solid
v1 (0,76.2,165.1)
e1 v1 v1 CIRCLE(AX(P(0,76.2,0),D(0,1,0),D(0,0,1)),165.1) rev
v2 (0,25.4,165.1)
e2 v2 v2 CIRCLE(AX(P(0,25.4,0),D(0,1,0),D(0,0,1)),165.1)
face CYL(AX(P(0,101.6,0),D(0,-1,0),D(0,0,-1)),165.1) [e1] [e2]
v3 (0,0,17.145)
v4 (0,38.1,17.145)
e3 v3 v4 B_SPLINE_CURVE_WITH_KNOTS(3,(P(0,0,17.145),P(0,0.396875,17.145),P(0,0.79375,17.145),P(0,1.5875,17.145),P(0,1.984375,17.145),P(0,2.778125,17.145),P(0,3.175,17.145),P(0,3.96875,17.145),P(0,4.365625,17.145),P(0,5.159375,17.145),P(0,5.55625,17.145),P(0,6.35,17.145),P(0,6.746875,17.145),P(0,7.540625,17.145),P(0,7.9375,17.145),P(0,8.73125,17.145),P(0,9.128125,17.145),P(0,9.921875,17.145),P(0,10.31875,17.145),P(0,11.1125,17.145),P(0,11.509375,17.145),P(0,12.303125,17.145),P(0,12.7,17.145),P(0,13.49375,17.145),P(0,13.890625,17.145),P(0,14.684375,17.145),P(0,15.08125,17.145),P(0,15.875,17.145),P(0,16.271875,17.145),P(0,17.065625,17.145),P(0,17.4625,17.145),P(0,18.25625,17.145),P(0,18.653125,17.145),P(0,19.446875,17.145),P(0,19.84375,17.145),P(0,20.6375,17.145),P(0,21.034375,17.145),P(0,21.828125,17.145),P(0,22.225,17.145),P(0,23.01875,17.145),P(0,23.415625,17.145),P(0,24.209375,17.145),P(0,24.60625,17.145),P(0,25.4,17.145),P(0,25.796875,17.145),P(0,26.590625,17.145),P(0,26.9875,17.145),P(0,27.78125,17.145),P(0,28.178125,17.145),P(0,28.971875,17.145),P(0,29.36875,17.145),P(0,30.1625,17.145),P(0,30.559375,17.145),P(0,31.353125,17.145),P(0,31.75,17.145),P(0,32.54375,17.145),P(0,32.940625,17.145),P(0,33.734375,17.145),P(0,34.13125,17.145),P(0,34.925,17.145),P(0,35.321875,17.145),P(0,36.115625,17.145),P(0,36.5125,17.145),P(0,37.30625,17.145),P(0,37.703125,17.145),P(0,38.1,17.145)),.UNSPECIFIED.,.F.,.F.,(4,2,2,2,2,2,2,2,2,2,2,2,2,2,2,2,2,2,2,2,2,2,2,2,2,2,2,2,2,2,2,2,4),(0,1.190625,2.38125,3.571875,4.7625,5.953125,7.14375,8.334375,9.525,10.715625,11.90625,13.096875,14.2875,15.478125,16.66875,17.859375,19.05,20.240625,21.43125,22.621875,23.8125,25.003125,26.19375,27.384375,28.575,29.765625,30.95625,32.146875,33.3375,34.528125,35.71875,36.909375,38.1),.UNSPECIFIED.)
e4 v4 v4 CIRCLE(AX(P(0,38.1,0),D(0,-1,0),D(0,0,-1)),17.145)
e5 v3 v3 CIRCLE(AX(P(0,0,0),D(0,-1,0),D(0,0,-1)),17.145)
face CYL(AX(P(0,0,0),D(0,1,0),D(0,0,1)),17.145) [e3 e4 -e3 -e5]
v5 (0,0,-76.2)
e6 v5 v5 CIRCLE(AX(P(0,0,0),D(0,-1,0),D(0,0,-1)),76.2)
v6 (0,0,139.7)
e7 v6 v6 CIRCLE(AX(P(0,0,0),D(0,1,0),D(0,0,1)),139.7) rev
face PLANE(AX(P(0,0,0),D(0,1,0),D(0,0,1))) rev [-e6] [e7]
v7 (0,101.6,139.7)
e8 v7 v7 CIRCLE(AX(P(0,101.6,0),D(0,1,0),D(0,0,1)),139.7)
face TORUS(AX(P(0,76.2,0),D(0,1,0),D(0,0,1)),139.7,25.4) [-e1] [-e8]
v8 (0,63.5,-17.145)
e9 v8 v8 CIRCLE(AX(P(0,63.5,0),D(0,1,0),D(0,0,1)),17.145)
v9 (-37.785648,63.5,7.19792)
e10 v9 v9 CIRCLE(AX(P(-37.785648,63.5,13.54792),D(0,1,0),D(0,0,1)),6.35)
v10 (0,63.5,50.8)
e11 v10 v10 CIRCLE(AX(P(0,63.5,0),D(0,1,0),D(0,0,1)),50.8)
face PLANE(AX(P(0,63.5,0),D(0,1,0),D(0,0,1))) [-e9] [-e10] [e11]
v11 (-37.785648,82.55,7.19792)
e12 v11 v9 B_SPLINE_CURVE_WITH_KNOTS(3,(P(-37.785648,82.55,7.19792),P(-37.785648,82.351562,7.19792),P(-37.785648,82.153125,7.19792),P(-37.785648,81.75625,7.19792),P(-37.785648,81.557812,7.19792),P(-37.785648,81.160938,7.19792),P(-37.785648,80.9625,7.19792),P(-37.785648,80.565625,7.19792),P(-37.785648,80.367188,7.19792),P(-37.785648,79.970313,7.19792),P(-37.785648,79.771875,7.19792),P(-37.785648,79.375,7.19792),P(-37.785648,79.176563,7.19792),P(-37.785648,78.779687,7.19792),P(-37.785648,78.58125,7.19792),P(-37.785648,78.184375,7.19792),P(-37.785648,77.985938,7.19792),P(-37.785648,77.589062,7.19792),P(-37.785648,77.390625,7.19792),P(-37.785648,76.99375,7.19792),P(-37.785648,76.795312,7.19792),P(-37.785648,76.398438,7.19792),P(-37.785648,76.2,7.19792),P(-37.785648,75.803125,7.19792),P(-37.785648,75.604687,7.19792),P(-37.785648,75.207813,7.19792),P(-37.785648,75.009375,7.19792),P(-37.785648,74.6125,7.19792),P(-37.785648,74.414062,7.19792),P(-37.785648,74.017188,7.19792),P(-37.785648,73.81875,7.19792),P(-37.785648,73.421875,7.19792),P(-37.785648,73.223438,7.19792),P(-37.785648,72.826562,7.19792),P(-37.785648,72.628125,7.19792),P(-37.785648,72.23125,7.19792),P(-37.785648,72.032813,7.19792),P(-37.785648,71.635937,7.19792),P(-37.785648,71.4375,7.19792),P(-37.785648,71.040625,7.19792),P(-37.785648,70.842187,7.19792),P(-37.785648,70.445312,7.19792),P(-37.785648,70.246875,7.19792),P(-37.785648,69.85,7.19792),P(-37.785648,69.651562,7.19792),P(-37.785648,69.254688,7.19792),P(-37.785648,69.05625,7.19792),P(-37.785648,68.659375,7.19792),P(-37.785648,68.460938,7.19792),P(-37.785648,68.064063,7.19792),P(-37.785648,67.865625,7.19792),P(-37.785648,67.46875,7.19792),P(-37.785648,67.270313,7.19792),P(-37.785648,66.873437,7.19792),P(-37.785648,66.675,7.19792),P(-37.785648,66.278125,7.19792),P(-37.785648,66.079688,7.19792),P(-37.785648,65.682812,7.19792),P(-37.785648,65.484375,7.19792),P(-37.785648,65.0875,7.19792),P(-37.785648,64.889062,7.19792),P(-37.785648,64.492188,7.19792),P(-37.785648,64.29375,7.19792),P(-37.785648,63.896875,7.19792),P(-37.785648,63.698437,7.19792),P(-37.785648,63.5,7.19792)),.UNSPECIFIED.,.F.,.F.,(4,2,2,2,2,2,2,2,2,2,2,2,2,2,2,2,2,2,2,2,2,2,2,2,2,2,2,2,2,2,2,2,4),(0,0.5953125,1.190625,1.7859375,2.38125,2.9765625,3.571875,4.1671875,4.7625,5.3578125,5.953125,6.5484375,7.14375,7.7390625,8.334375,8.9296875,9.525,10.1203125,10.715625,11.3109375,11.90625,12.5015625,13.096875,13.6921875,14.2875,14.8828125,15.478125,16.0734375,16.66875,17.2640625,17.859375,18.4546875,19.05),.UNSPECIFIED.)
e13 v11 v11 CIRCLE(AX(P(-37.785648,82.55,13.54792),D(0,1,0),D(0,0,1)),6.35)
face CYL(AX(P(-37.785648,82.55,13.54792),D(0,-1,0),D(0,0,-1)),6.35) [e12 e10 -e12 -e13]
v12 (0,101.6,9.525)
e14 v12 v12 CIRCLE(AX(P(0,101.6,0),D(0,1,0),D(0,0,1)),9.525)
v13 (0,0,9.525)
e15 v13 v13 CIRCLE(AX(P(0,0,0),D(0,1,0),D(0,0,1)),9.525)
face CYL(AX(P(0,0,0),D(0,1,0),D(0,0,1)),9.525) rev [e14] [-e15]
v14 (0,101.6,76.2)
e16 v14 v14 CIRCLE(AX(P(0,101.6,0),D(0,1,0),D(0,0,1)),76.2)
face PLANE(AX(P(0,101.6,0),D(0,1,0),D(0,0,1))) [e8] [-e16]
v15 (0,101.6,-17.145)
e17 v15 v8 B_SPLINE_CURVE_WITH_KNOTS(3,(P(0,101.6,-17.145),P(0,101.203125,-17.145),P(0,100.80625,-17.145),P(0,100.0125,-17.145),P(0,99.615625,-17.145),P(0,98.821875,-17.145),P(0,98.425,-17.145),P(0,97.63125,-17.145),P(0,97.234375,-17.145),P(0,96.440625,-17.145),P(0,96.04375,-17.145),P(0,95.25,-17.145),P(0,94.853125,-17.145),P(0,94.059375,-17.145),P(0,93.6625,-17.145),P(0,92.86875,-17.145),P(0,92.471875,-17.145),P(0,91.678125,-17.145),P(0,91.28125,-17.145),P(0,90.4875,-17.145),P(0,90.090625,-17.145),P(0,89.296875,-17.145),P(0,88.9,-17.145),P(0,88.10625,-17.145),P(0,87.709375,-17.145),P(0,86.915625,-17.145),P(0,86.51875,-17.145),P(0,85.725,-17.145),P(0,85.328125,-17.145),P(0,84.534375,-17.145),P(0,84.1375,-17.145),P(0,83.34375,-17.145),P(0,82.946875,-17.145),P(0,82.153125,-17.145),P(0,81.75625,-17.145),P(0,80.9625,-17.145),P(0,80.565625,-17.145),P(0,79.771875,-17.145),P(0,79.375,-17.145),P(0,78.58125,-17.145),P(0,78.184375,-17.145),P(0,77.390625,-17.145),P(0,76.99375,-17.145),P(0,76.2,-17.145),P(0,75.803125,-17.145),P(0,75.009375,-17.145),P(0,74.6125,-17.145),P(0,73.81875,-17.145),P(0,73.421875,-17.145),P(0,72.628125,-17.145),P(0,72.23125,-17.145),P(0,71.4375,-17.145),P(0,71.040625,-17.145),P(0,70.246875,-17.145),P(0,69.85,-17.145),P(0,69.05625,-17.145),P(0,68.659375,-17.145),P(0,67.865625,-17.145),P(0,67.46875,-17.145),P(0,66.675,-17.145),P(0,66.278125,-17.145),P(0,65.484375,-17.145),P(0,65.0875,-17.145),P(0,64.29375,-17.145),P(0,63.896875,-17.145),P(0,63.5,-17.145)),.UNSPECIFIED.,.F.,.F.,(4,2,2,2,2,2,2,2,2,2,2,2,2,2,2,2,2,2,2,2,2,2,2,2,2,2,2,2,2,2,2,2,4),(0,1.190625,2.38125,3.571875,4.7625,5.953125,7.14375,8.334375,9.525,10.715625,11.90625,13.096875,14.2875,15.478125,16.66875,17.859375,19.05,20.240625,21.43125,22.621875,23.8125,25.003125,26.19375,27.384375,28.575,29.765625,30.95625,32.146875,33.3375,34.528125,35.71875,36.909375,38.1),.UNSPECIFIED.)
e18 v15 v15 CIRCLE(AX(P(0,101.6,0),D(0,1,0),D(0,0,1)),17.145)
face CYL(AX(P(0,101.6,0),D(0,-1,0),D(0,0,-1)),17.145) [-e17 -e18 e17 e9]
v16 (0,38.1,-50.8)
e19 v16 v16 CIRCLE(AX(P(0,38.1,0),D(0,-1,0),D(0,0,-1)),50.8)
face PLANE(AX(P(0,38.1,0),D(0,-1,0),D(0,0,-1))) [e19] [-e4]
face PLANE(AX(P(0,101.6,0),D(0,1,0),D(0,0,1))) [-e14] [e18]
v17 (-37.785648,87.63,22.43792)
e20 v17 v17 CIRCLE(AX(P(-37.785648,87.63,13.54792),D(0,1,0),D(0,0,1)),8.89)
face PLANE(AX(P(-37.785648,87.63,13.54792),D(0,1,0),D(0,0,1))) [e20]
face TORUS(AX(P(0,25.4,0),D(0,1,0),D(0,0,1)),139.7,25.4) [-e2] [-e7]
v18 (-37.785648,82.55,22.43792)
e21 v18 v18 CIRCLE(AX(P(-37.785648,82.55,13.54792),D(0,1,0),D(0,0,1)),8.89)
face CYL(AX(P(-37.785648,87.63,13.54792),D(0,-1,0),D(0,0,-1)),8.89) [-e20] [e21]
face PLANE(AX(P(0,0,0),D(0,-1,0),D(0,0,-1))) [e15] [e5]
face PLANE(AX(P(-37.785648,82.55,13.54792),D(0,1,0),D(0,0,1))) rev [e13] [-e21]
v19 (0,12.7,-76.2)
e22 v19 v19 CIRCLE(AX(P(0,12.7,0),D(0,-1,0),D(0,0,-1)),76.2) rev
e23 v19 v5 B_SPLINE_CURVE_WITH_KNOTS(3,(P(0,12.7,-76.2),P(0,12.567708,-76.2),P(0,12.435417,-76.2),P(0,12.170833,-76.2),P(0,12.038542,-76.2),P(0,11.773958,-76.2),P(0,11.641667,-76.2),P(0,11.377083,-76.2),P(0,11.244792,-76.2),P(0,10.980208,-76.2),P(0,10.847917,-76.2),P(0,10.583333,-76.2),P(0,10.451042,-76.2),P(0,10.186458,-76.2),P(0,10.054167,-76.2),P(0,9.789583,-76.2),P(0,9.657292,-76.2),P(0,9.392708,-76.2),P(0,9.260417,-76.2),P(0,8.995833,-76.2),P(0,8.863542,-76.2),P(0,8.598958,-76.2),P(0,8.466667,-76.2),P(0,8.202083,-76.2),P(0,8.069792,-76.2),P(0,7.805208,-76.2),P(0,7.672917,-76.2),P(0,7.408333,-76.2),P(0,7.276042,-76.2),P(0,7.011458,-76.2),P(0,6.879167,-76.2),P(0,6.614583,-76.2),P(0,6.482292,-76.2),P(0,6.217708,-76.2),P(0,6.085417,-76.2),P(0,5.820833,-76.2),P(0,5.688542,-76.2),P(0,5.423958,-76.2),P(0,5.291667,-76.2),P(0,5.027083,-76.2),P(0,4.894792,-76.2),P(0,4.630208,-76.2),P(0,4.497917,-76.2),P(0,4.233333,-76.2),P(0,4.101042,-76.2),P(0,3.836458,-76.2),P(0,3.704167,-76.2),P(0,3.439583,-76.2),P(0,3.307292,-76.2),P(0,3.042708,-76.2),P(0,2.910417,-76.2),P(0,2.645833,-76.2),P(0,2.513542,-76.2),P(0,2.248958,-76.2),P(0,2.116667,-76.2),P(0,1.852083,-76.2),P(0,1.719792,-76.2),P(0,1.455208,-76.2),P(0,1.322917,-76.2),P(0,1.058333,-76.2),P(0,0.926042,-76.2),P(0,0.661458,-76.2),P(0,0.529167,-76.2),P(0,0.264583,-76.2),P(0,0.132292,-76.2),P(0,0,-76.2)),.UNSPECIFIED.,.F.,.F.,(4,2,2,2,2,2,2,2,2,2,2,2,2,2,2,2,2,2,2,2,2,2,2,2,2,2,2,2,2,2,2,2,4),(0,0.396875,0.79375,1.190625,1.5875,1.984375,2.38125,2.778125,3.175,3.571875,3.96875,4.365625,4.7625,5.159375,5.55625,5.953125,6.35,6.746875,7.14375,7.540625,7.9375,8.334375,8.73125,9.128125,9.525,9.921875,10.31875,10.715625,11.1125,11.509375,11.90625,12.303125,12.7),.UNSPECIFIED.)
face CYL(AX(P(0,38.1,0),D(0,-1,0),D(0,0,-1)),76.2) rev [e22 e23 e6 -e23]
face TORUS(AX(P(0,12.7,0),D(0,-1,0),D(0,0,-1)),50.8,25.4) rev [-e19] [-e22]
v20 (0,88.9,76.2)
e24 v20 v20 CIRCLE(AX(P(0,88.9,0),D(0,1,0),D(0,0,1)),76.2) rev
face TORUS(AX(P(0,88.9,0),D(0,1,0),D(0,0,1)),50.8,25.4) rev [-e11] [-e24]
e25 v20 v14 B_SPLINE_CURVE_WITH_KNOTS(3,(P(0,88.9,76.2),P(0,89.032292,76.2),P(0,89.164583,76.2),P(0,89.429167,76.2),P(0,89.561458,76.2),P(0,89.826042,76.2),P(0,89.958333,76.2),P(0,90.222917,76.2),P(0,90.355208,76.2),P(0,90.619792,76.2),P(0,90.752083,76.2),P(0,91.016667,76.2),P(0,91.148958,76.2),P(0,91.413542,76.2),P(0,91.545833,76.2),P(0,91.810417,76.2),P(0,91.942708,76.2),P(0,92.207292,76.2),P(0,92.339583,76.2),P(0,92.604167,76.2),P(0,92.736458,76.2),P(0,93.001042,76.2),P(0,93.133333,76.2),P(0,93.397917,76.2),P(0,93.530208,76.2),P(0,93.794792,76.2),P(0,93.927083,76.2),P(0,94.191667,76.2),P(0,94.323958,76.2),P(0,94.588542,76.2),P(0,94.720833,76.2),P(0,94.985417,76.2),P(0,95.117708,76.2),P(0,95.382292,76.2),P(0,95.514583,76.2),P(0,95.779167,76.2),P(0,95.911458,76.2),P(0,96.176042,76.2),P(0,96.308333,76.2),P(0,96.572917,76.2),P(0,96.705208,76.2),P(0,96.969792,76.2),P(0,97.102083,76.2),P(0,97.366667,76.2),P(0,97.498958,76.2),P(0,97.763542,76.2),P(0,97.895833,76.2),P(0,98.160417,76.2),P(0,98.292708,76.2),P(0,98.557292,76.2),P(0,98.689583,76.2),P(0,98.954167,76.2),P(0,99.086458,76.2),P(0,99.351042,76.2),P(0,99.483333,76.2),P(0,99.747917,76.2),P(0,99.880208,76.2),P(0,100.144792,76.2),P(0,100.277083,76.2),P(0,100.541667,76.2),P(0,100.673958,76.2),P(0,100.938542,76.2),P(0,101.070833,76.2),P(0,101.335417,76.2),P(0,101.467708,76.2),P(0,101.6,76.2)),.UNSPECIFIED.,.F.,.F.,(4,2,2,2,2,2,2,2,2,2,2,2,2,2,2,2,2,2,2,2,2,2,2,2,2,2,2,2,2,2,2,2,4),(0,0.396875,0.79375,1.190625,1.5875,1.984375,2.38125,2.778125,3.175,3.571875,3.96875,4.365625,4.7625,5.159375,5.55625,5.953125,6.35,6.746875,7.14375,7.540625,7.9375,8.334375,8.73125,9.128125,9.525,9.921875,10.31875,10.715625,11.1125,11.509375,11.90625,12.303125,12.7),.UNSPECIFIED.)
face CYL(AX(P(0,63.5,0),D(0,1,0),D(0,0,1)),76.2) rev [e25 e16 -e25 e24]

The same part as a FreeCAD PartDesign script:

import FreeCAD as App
import Part
import Sketcher

V = App.Vector
Q = App.Units.Quantity


def edges_at(feature, points):
    """Names of the edges that pass closest to the given points."""
    edges = feature.Shape.Edges
    near = lambda p: min(range(len(edges)), key=lambda i: edges[i].distToShape(Part.Vertex(*p))[0])
    return sorted({f"Edge{near(p) + 1}" for p in points})

doc = App.newDocument("Part")
body = doc.addObject("PartDesign::Body", "Body")

sketch1 = doc.addObject("Sketcher::SketchObject", "Sketch")
body.addObject(sketch1)
sketch1.AttachmentSupport = (doc.XZ_Plane, [""])
sketch1.MapMode = "FlatFace"
sketch1.addGeometry(Part.Circle(V(0, 0, 0), V(0, 0, 1), 165), False)
sketch1.addConstraint(Sketcher.Constraint("Coincident", 0, 3, -1, 1))
sketch1.addConstraint(Sketcher.Constraint("Diameter", 0, Q("13 in")))
pad1 = doc.addObject("PartDesign::Pad", "Pad")
body.addObject(pad1)
pad1.Profile = sketch1
pad1.Length = Q("4 in")
pad1.Reversed = True

sketch2 = doc.addObject("Sketcher::SketchObject", "Sketch001")
body.addObject(sketch2)
sketch2.AttachmentSupport = (doc.XZ_Plane, [""])
sketch2.MapMode = "FlatFace"
sketch2.AttachmentOffset = App.Placement(V(0, 0, -4 * 25.4), App.Rotation())
sketch2.addGeometry(Part.Circle(V(0, 0, 0), V(0, 0, 1), 76), False)
sketch2.addConstraint(Sketcher.Constraint("Coincident", 0, 3, -1, 1))
sketch2.addConstraint(Sketcher.Constraint("Diameter", 0, Q("6 in")))
pocket1 = doc.addObject("PartDesign::Pocket", "Pocket")
body.addObject(pocket1)
pocket1.Profile = sketch2
pocket1.Length = Q("1.5 in")
pocket1.Reversed = True
doc.recompute()

fillet = doc.addObject("PartDesign::Fillet", "Fillet")
body.addObject(fillet)
fillet.Base = (pocket1, edges_at(pocket1, [(0, 63.5, -76.2)]))
fillet.Radius = Q("1 in")
doc.recompute()

fillet2 = doc.addObject("PartDesign::Fillet", "Fillet001")
body.addObject(fillet2)
fillet2.Base = (fillet, edges_at(fillet, [(0, 101.6, -165.1)]))
fillet2.Radius = Q("1 in")

sketch3 = doc.addObject("Sketcher::SketchObject", "Sketch002")
body.addObject(sketch3)
sketch3.AttachmentSupport = (doc.XZ_Plane, [""])
sketch3.MapMode = "FlatFace"
sketch3.AttachmentOffset = App.Placement(V(0, 0, -1.5 * 25.4), App.Rotation())
sketch3.addGeometry(Part.Circle(V(0, 0, 0), V(0, 0, 1), 76), False)
sketch3.addConstraint(Sketcher.Constraint("Coincident", 0, 3, -1, 1))
sketch3.addConstraint(Sketcher.Constraint("Diameter", 0, Q("6 in")))
pocket2 = doc.addObject("PartDesign::Pocket", "Pocket001")
body.addObject(pocket2)
pocket2.Profile = sketch3
pocket2.Length = Q("1.5 in")
pocket2.Reversed = True
doc.recompute()

fillet3 = doc.addObject("PartDesign::Fillet", "Fillet002")
body.addObject(fillet3)
fillet3.Base = (pocket2, edges_at(pocket2, [(0, 38.1, -76.2)]))
fillet3.Radius = Q("1 in")
doc.recompute()

fillet4 = doc.addObject("PartDesign::Fillet", "Fillet003")
body.addObject(fillet4)
fillet4.Base = (fillet3, edges_at(fillet3, [(0, 0, -165.1)]))
fillet4.Radius = Q("1 in")

sketch4 = doc.addObject("Sketcher::SketchObject", "Sketch003")
body.addObject(sketch4)
sketch4.AttachmentSupport = (doc.XZ_Plane, [""])
sketch4.MapMode = "FlatFace"
sketch4.AttachmentOffset = App.Placement(V(0, 0, -1.5 * 25.4), App.Rotation())
sketch4.addGeometry(Part.Circle(V(0, 0, 0), V(0, 0, 1), 17), False)
sketch4.addConstraint(Sketcher.Constraint("Coincident", 0, 3, -1, 1))
sketch4.addConstraint(Sketcher.Constraint("Diameter", 0, Q("1.35 in")))
pad2 = doc.addObject("PartDesign::Pad", "Pad001")
body.addObject(pad2)
pad2.Profile = sketch4
pad2.Length = Q("1.5 in")

sketch5 = doc.addObject("Sketcher::SketchObject", "Sketch004")
body.addObject(sketch5)
sketch5.AttachmentSupport = (doc.XZ_Plane, [""])
sketch5.MapMode = "FlatFace"
sketch5.AttachmentOffset = App.Placement(V(0, 0, -4 * 25.4), App.Rotation())
sketch5.addGeometry(Part.Circle(V(0, 0, 0), V(0, 0, 1), 17), False)
sketch5.addConstraint(Sketcher.Constraint("Coincident", 0, 3, -1, 1))
sketch5.addConstraint(Sketcher.Constraint("Diameter", 0, Q("1.35 in")))
pad3 = doc.addObject("PartDesign::Pad", "Pad002")
body.addObject(pad3)
pad3.Profile = sketch5
pad3.Length = Q("1.5 in")

sketch6 = doc.addObject("Sketcher::SketchObject", "Sketch005")
body.addObject(sketch6)
sketch6.AttachmentSupport = (doc.XZ_Plane, [""])
sketch6.MapMode = "FlatFace"
sketch6.AttachmentOffset = App.Placement(V(0, 0, -4 * 25.4), App.Rotation())
sketch6.addGeometry(Part.Circle(V(0, 0, 0), V(0, 0, 1), 10), False)
sketch6.addConstraint(Sketcher.Constraint("Coincident", 0, 3, -1, 1))
sketch6.addConstraint(Sketcher.Constraint("Diameter", 0, Q("0.75 in")))
pocket3 = doc.addObject("PartDesign::Pocket", "Pocket002")
body.addObject(pocket3)
pocket3.Profile = sketch6
pocket3.Type = "ThroughAll"
pocket3.Reversed = True

sketch7 = doc.addObject("Sketcher::SketchObject", "Sketch006")
body.addObject(sketch7)
sketch7.AttachmentSupport = (doc.XZ_Plane, [""])
sketch7.MapMode = "FlatFace"
sketch7.AttachmentOffset = App.Placement(V(0, 0, -2.5 * 25.4), App.Rotation())
sketch7.addGeometry(Part.Circle(V(-38, 14, 0), V(0, 0, 1), 6), False)
sketch7.addConstraint(Sketcher.Constraint("Diameter", 0, Q("0.5 in")))
sketch7.addConstraint(Sketcher.Constraint("DistanceX", 0, 3, -1, 1, Q("37.785648 mm")))
sketch7.addConstraint(Sketcher.Constraint("DistanceY", -1, 1, 0, 3, Q("13.54792 mm")))
pad4 = doc.addObject("PartDesign::Pad", "Pad003")
body.addObject(pad4)
pad4.Profile = sketch7
pad4.Length = Q("0.75 in")
pad4.Reversed = True

sketch8 = doc.addObject("Sketcher::SketchObject", "Sketch007")
body.addObject(sketch8)
sketch8.AttachmentSupport = (doc.XZ_Plane, [""])
sketch8.MapMode = "FlatFace"
sketch8.AttachmentOffset = App.Placement(V(0, 0, -3.25 * 25.4), App.Rotation())
sketch8.addGeometry(Part.Circle(V(-38, 14, 0), V(0, 0, 1), 9), False)
sketch8.addConstraint(Sketcher.Constraint("Diameter", 0, Q("0.7 in")))
sketch8.addConstraint(Sketcher.Constraint("DistanceX", 0, 3, -1, 1, Q("37.785648 mm")))
sketch8.addConstraint(Sketcher.Constraint("DistanceY", -1, 1, 0, 3, Q("13.54792 mm")))
pad5 = doc.addObject("PartDesign::Pad", "Pad004")
body.addObject(pad5)
pad5.Profile = sketch8
pad5.Length = Q("0.2 in")
pad5.Reversed = True

doc.recompute()
